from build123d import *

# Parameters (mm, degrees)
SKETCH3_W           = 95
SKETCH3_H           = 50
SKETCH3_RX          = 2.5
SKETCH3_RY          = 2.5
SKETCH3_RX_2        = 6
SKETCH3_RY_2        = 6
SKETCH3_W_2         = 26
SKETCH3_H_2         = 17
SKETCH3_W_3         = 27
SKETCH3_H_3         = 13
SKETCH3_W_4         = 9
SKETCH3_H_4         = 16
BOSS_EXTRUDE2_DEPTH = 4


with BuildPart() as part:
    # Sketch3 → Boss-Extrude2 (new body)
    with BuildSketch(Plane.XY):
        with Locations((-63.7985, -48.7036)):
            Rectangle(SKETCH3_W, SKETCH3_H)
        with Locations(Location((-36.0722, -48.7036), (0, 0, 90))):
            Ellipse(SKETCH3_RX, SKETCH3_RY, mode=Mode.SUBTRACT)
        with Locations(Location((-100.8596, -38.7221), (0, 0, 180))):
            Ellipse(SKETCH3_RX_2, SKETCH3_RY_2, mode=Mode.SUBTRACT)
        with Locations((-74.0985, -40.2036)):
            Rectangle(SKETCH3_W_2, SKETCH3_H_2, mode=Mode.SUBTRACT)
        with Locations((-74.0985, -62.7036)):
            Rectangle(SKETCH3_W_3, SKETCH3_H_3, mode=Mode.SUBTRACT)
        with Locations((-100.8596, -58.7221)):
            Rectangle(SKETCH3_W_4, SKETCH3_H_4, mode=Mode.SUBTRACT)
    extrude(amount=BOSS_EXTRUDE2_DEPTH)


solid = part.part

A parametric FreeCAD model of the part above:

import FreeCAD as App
import Part
import Sketcher


def add_polygon(sketch, points):
    """Adds a closed chain of lines whose ends are joined by coincident constraints."""
    first, n = sketch.GeometryCount, len(points)
    for a, b in zip(points, points[1:] + points[:1]):
        sketch.addGeometry(Part.LineSegment(App.Vector(*a, 0), App.Vector(*b, 0)), False)
    for i in range(n):
        sketch.addConstraint(Sketcher.Constraint("Coincident", first + i, 2, first + (i + 1) % n, 1))

doc = App.newDocument("Part")
body = doc.addObject("PartDesign::Body", "Body")

# Sketch on XY plane
sketch1 = body.newObject("Sketcher::SketchObject", "Sketch")
sketch1.AttachmentSupport = (doc.getObject("XY_Plane"), [""])
sketch1.MapMode = "FlatFace"
add_polygon(sketch1, [(-111.2985, -23.7036), (-111.2985, -73.7036), (-16.2985, -73.7036), (-16.2985, -23.7036)])  # lines 0-3
add_polygon(sketch1, [(-60.5985, -69.2036), (-87.5985, -69.2036), (-87.5985, -56.2036), (-60.5985, -56.2036)])  # lines 4-7
add_polygon(sketch1, [(-96.3596, -66.7221), (-105.3596, -66.7221), (-105.3596, -50.7221), (-96.3596, -50.7221)])  # lines 8-11
sketch1.addGeometry(Part.Ellipse(App.Vector(-106.8596, -38.7221, 0), App.Vector(-100.8596, -44.7221, 0), App.Vector(-100.8596, -38.7221, 0)), False)  # 12
add_polygon(sketch1, [(-61.0985, -48.7036), (-87.0985, -48.7036), (-87.0985, -31.7036), (-61.0985, -31.7036)])  # lines 13-16
sketch1.addGeometry(Part.Ellipse(App.Vector(-36.0722, -46.2036, 0), App.Vector(-38.5722, -48.7036, 0), App.Vector(-36.0722, -48.7036, 0)), False)  # 17
sketch1.addConstraint(Sketcher.Constraint("Block", 12))
sketch1.addConstraint(Sketcher.Constraint("Block", 17))
sketch1.addConstraint(Sketcher.Constraint("Vertical", 0))
sketch1.addConstraint(Sketcher.Constraint("Horizontal", 1))
sketch1.addConstraint(Sketcher.Constraint("Vertical", 2))
sketch1.addConstraint(Sketcher.Constraint("Horizontal", 3))
sketch1.addConstraint(Sketcher.Constraint("Horizontal", 4))
sketch1.addConstraint(Sketcher.Constraint("Vertical", 5))
sketch1.addConstraint(Sketcher.Constraint("Horizontal", 6))
sketch1.addConstraint(Sketcher.Constraint("Vertical", 7))
sketch1.addConstraint(Sketcher.Constraint("Horizontal", 8))
sketch1.addConstraint(Sketcher.Constraint("Vertical", 9))
sketch1.addConstraint(Sketcher.Constraint("Horizontal", 10))
sketch1.addConstraint(Sketcher.Constraint("Vertical", 11))
sketch1.addConstraint(Sketcher.Constraint("Horizontal", 13))
sketch1.addConstraint(Sketcher.Constraint("Vertical", 14))
sketch1.addConstraint(Sketcher.Constraint("Horizontal", 15))
sketch1.addConstraint(Sketcher.Constraint("Vertical", 16))
sketch1.addConstraint(Sketcher.Constraint("DistanceX", 1, 1, 1, 2, 95.0))
sketch1.addConstraint(Sketcher.Constraint("DistanceX", 4, 2, 4, 1, 27.0))
sketch1.addConstraint(Sketcher.Constraint("DistanceX", 8, 2, 8, 1, 9.0))
sketch1.addConstraint(Sketcher.Constraint("DistanceX", 13, 2, 13, 1, 26.0))
sketch1.addConstraint(Sketcher.Constraint("DistanceY", 0, 2, 0, 1, 50.0))
sketch1.addConstraint(Sketcher.Constraint("DistanceY", 5, 1, 5, 2, 13.0))
sketch1.addConstraint(Sketcher.Constraint("DistanceY", 9, 1, 9, 2, 16.0))
sketch1.addConstraint(Sketcher.Constraint("DistanceY", 14, 1, 14, 2, 17.0))
sketch1.addConstraint(Sketcher.Constraint("DistanceY", 14, 2, 3, 2, 8.0))
sketch1.addConstraint(Sketcher.Constraint("DistanceX", 0, 2, 4, 2, 23.7))
sketch1.addConstraint(Sketcher.Constraint("DistanceY", 0, 2, 4, 2, 4.5))
sketch1.addConstraint(Sketcher.Constraint("DistanceX", 5, 2, 13, 2, 0.5))
sketch1.addConstraint(Sketcher.Constraint("DistanceX", 0, 2, -1, 1, 111.2985))
sketch1.addConstraint(Sketcher.Constraint("DistanceY", 0, 2, -1, 1, 73.7036))
sketch1.addConstraint(Sketcher.Constraint("DistanceX", 8, 2, -1, 1, 105.3596))
sketch1.addConstraint(Sketcher.Constraint("DistanceY", 8, 2, -1, 1, 66.7221))
pad1 = body.newObject("PartDesign::Pad", "Pad")
pad1.Profile = sketch1
pad1.Length = 4

doc.recompute()
